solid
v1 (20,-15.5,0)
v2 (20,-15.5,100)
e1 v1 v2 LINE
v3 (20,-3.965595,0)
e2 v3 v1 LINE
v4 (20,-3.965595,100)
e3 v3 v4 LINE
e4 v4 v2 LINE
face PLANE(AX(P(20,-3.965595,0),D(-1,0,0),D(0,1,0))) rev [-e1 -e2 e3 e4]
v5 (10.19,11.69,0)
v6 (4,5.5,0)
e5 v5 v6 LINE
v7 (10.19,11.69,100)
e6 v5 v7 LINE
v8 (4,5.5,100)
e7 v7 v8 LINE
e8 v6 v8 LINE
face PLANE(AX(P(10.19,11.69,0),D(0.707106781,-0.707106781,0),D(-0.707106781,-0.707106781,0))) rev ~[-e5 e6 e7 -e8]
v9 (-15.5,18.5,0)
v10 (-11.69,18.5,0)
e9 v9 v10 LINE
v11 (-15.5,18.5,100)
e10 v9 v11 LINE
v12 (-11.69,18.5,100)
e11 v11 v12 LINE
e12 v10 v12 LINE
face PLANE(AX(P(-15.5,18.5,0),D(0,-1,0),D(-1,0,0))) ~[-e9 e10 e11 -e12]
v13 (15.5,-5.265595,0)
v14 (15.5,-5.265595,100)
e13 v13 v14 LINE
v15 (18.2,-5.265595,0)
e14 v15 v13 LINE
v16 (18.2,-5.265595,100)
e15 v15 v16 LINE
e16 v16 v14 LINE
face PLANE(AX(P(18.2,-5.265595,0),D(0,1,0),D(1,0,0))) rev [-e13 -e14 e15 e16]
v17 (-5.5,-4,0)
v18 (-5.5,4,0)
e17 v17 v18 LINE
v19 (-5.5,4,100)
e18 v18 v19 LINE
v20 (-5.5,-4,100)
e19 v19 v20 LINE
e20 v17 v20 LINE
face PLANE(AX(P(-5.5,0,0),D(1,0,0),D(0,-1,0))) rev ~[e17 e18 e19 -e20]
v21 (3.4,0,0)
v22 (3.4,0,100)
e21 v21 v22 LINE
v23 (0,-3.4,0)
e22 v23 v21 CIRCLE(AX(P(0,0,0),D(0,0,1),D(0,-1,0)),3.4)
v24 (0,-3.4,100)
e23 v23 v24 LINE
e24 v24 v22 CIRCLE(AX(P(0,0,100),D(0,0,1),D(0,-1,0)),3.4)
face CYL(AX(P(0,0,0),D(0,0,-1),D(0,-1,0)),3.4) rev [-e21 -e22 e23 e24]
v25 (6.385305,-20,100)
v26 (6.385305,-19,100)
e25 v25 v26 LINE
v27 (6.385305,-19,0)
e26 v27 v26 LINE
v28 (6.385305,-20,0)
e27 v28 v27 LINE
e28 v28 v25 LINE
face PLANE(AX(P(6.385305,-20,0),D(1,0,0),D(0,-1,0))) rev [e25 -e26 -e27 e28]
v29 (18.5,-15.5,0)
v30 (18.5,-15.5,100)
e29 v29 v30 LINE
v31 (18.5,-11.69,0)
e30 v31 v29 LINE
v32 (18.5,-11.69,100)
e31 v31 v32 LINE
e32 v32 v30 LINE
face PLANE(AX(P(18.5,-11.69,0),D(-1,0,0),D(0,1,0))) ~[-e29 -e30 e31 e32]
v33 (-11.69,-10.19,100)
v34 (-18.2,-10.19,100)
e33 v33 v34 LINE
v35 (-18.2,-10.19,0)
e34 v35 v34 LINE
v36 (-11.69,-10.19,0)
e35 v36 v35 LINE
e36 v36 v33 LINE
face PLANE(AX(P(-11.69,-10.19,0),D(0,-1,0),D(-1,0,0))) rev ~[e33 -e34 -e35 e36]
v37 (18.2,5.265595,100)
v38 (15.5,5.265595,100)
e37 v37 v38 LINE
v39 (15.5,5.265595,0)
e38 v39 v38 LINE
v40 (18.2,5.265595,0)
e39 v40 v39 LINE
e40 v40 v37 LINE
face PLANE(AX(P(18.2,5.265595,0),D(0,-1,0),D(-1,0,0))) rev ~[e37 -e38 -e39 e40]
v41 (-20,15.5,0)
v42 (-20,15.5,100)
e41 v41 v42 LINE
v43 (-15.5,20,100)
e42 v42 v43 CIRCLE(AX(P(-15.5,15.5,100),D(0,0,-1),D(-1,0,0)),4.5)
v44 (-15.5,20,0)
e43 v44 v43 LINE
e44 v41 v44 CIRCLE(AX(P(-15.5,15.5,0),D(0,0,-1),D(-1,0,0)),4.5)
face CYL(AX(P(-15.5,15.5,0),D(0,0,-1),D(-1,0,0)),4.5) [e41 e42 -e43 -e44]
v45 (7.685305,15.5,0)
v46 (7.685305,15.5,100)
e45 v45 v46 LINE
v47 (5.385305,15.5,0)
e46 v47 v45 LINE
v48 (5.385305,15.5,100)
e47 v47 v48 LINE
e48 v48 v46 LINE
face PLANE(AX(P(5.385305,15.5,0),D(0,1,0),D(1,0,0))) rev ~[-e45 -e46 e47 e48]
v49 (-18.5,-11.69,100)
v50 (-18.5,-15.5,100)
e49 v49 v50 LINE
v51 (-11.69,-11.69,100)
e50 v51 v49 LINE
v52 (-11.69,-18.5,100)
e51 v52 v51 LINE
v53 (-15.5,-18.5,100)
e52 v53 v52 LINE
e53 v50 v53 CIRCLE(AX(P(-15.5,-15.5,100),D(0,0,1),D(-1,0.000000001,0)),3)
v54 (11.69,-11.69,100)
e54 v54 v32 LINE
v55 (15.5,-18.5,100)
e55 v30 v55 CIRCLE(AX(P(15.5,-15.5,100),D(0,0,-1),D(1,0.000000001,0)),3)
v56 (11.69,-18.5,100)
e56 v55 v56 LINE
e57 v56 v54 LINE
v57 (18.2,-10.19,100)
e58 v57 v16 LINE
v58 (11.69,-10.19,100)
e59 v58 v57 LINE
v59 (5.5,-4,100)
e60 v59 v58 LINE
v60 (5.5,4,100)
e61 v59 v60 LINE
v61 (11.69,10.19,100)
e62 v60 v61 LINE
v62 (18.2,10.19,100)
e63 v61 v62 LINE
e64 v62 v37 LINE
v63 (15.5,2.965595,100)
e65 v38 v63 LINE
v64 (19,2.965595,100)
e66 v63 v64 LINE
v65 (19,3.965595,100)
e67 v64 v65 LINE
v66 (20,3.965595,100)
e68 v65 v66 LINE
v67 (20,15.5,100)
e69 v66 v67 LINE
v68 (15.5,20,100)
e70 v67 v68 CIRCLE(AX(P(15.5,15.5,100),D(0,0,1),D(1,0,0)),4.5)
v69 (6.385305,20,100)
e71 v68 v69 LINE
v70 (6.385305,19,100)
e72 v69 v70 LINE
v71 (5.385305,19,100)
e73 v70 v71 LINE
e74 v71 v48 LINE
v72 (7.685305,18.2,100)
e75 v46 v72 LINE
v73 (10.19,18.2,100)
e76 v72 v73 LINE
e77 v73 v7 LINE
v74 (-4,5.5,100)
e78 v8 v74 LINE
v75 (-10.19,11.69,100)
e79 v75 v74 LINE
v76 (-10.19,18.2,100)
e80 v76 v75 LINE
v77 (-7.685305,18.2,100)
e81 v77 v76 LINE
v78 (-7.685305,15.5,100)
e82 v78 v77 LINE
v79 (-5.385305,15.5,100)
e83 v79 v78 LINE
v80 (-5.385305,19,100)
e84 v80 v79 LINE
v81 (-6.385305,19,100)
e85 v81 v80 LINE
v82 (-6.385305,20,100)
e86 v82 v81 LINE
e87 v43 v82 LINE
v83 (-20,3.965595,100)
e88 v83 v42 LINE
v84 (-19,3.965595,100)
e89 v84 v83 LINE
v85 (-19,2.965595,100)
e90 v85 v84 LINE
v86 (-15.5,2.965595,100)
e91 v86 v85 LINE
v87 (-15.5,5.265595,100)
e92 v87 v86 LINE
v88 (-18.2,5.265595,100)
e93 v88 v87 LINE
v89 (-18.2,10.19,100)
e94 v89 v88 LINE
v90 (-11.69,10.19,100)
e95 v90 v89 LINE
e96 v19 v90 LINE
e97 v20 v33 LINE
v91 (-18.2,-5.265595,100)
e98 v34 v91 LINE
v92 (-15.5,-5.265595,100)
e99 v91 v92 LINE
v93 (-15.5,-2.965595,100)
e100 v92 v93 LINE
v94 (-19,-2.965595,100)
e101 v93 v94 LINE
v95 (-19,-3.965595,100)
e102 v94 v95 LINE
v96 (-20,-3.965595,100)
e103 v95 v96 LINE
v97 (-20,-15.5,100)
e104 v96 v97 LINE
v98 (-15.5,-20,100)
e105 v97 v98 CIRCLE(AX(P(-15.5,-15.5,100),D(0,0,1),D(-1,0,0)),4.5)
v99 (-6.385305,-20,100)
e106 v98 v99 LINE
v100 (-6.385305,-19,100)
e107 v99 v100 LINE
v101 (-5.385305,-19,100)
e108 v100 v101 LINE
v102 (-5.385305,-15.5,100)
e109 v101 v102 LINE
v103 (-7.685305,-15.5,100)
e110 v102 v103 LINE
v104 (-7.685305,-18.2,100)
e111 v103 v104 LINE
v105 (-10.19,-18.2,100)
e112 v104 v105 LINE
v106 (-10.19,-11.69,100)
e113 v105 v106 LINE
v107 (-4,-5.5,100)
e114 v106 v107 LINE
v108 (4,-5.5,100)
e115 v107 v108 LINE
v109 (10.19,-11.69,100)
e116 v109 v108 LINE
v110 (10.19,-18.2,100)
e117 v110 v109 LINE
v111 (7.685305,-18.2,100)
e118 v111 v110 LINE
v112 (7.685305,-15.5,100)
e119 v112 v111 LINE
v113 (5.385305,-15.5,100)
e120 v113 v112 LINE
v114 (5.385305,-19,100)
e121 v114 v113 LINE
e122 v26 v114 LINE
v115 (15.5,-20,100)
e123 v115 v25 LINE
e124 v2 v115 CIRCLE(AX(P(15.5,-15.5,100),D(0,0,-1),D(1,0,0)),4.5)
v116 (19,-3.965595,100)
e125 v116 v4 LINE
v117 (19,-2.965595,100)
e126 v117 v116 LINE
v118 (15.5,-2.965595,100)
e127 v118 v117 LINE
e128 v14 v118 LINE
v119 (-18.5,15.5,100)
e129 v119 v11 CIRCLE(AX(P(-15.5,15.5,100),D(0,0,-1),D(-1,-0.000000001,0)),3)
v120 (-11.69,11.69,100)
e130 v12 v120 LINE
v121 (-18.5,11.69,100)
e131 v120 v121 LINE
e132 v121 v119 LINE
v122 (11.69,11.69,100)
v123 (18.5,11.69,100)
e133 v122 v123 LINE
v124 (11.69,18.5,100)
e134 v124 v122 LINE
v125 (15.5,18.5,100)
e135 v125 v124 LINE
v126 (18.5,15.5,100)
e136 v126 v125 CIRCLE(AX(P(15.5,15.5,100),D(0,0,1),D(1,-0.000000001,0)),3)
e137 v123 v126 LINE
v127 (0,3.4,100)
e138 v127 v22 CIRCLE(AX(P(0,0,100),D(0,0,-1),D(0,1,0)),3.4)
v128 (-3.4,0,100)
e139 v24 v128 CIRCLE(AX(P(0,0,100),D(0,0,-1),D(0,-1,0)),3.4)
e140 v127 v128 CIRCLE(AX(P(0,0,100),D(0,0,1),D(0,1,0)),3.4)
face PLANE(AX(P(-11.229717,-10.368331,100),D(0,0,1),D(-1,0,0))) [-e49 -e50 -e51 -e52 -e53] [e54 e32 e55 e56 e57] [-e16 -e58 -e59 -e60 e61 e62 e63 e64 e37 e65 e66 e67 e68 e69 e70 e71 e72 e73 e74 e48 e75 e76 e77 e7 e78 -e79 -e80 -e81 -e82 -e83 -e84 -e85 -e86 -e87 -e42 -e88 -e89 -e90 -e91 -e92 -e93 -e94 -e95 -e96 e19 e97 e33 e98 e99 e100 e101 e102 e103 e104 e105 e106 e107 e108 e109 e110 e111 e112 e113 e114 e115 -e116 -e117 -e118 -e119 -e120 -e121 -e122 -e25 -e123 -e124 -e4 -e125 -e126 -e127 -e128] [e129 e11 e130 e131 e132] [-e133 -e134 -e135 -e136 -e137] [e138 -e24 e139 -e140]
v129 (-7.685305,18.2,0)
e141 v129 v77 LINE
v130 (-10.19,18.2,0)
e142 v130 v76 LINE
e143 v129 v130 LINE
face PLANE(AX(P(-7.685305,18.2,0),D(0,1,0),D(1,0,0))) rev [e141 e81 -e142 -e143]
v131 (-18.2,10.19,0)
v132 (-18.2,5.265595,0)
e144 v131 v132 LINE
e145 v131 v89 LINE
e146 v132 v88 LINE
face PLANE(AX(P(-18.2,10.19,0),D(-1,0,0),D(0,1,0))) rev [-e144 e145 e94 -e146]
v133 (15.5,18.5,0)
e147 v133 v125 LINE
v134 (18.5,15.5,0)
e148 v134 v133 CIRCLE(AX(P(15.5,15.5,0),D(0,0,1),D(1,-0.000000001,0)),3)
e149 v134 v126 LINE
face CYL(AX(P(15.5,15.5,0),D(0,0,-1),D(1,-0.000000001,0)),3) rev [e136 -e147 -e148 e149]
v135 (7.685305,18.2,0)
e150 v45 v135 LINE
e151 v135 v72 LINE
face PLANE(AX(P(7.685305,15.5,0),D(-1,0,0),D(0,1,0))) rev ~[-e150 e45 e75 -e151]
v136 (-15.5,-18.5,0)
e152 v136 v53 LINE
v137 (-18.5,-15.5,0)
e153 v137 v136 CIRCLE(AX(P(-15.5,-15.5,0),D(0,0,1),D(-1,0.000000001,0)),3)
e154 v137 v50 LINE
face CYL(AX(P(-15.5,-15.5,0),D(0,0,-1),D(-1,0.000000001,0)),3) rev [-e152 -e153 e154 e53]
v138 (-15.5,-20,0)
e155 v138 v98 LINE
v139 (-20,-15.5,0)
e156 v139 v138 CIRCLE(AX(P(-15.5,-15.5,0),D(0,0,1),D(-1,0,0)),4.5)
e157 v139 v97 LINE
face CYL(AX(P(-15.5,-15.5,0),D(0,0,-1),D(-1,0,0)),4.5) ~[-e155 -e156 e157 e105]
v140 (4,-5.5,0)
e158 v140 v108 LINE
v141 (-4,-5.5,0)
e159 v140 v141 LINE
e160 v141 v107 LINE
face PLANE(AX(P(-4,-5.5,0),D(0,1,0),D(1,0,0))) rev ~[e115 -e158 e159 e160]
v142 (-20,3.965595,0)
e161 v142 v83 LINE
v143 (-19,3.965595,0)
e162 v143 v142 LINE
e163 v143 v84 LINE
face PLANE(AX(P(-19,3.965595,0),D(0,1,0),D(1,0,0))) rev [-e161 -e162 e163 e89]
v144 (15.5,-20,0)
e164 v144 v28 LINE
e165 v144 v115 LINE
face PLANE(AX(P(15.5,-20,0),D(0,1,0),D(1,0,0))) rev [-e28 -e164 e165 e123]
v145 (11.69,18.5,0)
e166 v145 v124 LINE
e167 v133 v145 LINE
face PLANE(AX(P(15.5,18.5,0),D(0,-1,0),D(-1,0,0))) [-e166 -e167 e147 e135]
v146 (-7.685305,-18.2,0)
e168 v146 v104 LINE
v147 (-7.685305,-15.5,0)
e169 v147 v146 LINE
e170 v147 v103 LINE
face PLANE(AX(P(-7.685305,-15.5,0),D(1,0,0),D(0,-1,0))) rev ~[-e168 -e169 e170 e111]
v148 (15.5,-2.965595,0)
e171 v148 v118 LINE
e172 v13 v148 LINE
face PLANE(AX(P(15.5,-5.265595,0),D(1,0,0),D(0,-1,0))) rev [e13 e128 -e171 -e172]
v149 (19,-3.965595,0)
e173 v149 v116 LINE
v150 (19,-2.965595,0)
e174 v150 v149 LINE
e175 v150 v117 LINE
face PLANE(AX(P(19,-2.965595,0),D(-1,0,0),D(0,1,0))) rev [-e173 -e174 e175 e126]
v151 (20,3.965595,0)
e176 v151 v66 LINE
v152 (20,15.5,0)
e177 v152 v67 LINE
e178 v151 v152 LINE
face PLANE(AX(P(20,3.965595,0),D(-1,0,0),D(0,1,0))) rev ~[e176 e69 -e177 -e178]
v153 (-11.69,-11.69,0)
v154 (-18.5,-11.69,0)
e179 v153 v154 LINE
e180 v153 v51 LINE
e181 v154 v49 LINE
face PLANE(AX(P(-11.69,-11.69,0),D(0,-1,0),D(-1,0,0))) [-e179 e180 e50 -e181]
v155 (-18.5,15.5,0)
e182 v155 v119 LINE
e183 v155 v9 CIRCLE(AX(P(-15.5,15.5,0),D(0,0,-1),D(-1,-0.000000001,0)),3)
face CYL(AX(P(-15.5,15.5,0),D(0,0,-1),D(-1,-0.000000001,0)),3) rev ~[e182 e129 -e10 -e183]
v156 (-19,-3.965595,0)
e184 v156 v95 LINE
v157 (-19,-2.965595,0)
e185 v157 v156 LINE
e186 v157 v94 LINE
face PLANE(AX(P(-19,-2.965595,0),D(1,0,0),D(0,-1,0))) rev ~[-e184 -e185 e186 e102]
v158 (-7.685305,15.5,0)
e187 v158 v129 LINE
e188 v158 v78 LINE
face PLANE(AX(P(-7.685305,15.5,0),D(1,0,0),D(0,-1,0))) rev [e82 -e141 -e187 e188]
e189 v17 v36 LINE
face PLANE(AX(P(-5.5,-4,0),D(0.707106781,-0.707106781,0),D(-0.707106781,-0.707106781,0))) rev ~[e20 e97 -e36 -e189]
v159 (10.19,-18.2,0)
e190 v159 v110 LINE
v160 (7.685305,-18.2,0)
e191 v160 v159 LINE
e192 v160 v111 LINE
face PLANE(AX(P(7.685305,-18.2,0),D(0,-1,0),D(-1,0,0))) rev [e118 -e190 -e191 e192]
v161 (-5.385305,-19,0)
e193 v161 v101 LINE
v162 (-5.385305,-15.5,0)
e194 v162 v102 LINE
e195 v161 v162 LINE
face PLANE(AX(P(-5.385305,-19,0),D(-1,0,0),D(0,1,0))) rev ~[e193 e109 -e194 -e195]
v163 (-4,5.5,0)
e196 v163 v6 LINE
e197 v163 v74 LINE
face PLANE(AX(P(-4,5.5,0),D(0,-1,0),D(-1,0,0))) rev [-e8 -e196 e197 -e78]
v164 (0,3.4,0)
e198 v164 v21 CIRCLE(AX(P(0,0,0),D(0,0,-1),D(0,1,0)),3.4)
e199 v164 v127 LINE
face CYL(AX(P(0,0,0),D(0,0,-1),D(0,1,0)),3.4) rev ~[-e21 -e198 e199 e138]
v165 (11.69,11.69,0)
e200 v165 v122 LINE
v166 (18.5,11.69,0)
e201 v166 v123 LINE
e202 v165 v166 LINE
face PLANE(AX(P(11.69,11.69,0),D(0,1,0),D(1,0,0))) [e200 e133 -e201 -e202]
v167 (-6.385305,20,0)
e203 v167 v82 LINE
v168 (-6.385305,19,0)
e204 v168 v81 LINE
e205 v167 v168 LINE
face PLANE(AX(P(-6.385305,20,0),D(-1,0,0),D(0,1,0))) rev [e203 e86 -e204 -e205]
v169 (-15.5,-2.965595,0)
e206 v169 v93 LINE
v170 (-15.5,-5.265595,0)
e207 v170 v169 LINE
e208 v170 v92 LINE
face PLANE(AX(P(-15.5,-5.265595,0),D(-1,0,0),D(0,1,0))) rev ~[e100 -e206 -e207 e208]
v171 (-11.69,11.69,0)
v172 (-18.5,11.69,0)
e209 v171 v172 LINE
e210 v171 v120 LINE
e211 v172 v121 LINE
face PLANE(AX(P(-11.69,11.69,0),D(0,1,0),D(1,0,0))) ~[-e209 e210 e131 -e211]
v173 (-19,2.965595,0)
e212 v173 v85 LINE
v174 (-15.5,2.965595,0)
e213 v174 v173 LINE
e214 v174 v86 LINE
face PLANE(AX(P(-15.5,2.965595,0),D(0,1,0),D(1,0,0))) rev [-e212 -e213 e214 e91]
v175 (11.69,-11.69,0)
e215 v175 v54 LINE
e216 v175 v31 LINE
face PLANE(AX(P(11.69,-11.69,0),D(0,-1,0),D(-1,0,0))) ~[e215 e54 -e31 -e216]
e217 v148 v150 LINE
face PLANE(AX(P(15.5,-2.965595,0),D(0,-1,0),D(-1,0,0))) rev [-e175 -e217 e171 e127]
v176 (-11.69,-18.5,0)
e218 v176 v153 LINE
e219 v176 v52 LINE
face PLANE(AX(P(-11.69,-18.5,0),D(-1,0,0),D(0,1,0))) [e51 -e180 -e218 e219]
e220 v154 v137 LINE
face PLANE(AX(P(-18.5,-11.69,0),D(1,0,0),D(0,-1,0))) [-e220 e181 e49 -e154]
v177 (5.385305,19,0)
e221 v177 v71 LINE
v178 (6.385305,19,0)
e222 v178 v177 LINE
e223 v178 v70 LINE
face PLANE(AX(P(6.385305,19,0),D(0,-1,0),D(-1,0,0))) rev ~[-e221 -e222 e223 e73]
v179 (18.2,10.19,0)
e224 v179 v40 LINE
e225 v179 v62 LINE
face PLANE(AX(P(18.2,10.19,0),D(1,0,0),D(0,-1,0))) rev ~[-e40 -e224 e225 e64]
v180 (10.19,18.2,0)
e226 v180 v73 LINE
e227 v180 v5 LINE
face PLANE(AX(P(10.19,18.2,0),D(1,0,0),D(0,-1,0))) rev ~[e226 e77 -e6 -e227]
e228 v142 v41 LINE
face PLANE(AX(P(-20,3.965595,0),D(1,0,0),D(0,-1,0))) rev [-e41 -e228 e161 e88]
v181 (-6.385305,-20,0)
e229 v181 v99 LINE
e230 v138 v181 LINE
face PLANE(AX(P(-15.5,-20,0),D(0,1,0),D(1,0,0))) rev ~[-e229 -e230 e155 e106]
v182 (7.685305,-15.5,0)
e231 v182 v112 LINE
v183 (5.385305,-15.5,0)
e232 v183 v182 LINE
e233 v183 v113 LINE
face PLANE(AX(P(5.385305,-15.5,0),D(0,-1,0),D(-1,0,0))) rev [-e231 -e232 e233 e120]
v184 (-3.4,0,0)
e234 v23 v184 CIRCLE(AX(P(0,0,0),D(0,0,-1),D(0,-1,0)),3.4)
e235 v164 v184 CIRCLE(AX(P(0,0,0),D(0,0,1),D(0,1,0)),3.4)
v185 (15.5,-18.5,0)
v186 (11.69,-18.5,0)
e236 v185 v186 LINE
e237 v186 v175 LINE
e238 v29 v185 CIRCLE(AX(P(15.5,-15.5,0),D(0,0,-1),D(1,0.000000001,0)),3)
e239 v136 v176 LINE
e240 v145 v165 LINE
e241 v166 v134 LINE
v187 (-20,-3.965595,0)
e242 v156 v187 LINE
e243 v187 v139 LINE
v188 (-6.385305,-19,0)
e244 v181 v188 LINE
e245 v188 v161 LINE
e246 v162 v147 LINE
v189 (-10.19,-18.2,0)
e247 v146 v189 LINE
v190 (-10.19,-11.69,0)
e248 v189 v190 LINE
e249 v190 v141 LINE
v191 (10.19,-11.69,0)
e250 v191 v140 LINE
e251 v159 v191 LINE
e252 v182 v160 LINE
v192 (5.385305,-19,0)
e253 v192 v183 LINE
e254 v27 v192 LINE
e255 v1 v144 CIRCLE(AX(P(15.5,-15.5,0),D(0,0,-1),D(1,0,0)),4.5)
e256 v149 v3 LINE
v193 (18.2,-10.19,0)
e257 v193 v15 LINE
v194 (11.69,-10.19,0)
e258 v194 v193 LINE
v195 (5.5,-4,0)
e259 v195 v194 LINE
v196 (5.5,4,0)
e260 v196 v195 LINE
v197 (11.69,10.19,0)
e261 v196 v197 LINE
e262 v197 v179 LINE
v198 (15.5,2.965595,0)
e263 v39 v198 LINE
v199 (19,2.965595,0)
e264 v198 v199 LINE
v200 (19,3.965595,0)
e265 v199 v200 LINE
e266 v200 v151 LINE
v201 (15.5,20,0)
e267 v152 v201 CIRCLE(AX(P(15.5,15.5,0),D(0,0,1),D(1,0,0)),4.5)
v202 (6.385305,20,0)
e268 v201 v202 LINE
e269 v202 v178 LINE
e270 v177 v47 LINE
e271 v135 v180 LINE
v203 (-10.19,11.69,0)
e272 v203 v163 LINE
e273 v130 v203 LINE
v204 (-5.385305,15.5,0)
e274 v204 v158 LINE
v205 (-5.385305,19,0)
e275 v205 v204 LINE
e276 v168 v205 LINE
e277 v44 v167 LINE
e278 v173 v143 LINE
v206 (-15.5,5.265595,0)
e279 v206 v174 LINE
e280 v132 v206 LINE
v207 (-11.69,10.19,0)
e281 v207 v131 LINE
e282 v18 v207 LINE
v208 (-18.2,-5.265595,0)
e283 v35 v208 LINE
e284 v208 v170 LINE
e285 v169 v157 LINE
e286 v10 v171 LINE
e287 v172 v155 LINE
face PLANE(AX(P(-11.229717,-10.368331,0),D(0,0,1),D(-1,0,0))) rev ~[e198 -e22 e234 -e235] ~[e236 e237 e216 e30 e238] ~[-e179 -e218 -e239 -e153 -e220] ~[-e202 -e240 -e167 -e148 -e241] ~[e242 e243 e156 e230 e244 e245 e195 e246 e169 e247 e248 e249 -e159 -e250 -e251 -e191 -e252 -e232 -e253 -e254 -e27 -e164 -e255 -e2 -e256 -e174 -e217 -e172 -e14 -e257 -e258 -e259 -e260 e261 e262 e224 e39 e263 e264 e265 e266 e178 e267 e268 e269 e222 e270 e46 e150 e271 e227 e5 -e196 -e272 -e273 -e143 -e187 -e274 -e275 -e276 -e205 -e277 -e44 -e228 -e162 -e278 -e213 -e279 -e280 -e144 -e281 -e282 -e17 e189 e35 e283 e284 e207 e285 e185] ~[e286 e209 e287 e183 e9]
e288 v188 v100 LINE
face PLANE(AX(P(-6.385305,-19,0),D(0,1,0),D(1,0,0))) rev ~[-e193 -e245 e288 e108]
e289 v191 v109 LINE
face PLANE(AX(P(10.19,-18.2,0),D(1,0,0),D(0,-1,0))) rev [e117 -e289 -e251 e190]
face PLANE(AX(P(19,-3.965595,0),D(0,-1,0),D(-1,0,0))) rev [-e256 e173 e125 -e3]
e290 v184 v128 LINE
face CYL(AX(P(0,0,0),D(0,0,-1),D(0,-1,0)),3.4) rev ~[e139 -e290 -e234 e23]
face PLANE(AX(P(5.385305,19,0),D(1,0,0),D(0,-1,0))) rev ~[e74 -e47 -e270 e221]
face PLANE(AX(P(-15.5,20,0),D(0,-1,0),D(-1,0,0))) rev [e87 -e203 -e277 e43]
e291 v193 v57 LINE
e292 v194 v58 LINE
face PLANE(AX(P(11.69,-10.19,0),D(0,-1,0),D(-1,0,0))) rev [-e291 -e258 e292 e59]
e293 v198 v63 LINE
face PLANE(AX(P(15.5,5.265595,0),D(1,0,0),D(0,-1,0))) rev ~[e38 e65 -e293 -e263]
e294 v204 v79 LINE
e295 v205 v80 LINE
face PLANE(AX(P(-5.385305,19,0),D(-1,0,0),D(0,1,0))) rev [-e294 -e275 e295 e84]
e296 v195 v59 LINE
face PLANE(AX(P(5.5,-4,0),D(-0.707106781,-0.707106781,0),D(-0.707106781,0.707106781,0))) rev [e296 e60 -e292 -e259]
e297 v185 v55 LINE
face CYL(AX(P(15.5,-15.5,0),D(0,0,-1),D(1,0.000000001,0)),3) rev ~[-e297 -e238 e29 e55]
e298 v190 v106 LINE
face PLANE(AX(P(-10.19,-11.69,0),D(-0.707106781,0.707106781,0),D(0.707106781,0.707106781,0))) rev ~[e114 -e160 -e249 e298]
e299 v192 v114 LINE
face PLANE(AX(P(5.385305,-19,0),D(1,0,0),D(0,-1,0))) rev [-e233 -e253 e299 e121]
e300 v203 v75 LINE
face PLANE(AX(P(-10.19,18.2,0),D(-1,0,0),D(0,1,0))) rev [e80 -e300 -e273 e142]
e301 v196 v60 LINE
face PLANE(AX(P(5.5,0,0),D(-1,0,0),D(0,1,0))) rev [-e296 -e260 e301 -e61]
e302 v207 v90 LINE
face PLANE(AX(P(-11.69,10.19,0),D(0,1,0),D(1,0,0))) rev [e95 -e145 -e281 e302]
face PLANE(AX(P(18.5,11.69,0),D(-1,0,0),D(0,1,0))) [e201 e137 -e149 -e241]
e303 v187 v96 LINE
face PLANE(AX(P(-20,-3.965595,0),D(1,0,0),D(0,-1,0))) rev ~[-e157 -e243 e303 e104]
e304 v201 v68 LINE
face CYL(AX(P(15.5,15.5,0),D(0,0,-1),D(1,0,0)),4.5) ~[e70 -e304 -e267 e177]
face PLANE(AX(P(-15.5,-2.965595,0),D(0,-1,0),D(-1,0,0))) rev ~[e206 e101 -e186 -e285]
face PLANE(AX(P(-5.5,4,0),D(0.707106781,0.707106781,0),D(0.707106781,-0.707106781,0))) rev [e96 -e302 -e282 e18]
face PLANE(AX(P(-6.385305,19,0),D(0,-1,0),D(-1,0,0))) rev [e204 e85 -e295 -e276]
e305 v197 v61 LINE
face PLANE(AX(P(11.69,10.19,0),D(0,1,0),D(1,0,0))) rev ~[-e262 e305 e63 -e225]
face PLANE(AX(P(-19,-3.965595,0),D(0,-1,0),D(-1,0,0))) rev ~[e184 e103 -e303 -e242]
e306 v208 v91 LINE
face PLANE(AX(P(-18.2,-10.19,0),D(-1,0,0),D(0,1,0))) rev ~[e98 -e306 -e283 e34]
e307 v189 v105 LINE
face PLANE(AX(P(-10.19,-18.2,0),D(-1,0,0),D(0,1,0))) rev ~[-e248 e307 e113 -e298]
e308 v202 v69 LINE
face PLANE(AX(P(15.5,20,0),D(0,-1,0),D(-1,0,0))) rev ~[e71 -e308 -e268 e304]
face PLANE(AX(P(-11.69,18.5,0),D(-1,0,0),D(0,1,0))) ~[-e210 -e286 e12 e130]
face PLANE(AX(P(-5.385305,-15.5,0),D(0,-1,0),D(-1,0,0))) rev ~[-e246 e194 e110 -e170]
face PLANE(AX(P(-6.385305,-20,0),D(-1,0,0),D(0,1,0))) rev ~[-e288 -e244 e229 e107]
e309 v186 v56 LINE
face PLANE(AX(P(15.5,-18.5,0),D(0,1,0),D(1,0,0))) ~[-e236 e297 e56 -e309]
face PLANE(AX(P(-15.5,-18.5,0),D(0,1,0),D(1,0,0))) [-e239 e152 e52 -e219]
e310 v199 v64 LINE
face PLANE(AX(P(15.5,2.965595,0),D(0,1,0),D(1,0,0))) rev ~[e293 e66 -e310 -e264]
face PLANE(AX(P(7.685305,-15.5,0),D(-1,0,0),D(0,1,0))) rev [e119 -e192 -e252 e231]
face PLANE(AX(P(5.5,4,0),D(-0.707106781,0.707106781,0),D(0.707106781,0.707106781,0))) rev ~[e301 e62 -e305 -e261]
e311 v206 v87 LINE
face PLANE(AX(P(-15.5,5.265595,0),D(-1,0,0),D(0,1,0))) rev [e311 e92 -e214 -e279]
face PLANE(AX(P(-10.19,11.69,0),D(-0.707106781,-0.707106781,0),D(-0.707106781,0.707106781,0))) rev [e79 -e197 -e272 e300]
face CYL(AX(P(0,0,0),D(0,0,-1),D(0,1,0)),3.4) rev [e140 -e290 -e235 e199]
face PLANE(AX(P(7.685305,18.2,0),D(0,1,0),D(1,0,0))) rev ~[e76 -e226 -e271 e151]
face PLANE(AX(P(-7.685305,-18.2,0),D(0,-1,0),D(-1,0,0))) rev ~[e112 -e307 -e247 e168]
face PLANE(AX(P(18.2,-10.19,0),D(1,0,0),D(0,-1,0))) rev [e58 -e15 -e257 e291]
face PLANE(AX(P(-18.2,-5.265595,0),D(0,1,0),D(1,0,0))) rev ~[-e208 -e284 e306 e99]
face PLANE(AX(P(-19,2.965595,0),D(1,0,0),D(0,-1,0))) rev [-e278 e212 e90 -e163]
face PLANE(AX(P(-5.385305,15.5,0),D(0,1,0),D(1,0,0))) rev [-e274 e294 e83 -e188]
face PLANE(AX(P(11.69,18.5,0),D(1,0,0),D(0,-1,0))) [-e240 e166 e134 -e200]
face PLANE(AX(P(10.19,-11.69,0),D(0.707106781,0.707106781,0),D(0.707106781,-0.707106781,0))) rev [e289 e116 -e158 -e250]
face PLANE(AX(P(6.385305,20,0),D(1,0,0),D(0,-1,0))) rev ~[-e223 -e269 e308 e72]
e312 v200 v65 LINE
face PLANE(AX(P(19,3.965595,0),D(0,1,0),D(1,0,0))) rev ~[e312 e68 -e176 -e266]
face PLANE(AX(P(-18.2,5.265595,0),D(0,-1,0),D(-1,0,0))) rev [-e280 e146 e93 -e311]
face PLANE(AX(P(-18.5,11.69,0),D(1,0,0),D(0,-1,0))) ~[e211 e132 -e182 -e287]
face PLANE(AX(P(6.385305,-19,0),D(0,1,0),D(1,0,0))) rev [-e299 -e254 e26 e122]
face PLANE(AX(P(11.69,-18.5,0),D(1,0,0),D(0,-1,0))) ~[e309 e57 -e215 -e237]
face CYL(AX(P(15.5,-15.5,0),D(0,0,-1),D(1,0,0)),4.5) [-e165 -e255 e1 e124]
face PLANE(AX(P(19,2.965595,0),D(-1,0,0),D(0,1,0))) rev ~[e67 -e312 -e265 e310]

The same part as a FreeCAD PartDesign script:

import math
import FreeCAD as App
import Part
import Sketcher
from FreeCAD import Vector
Q = App.Units.Quantity

doc = App.newDocument("Part")
params = doc.addObject("Spreadsheet::Sheet", "Params")
for row, (alias, value) in enumerate([
    ("sketch1_radius", "3 mm"),
    ("sketch1_radius2", "4.5 mm"),
    ("sketch1_radius3", "3.4 mm"),
    ("sketch1_width", "1 mm"),
    ("sketch1_width2", "4 mm"),
    ("pad1_length", "100 mm"),
    ("sketch2_radius", "3 mm"),
    ("sketch2_radius2", "4.5 mm"),
    ("sketch2_radius3", "3.4 mm"),
    ("sketch2_width", "1 mm"),
    ("sketch2_width2", "4 mm"),
    ("pad2_length", "100 mm"),
    ("sketch3_radius", "3 mm"),
    ("sketch3_radius2", "3.4 mm"),
    ("sketch3_radius3", "4.5 mm"),
    ("sketch3_width", "4 mm"),
    ("sketch3_width2", "1 mm"),
    ("pad3_length", "100 mm"),
], start=1):
    params.set(f"A{row}", alias)
    params.set(f"B{row}", "=" + value)
    params.setAlias(f"B{row}", alias)

body = doc.addObject("PartDesign::Body", "Body")

# Sketch on XY plane
sketch1 = doc.addObject("Sketcher::SketchObject", "Sketch")
body.addObject(sketch1)
sketch1.AttachmentSupport = (doc.XY_Plane, [""])
sketch1.MapMode = "FlatFace"
sketch1.addGeometry([
    Part.LineSegment(Vector(3.4, 0, 0), Vector(5.5, 0, 0)),  # 0
    Part.LineSegment(Vector(5.5, 0, 0), Vector(5.5, 4, 0)),  # 1
    Part.LineSegment(Vector(5.5, 4, 0), Vector(11.7, 10.2, 0)),  # 2
    Part.LineSegment(Vector(11.7, 10.2, 0), Vector(18.2, 10.2, 0)),  # 3
    Part.LineSegment(Vector(18.2, 10.2, 0), Vector(18.2, 5.3, 0)),  # 4
    Part.LineSegment(Vector(18.2, 5.3, 0), Vector(15.5, 5.3, 0)),  # 5
    Part.LineSegment(Vector(15.5, 5.3, 0), Vector(15.5, 3, 0)),  # 6
    Part.LineSegment(Vector(15.5, 3, 0), Vector(19, 3, 0)),  # 7
    Part.LineSegment(Vector(19, 3, 0), Vector(19, 4, 0)),  # 8
    Part.LineSegment(Vector(19, 4, 0), Vector(20, 4, 0)),  # 9
    Part.LineSegment(Vector(20, 4, 0), Vector(20, 15.5, 0)),  # 10
    Part.ArcOfCircle(Part.Circle(Vector(15.5, 15.5, 0), Vector(0, 0, 1), 4.5), math.radians(0), math.radians(90)),  # 11
    Part.LineSegment(Vector(15.5, 20, 0), Vector(6.4, 20, 0)),  # 12
    Part.LineSegment(Vector(6.4, 20, 0), Vector(6.4, 19, 0)),  # 13
    Part.LineSegment(Vector(6.4, 19, 0), Vector(5.4, 19, 0)),  # 14
    Part.LineSegment(Vector(5.4, 19, 0), Vector(5.4, 15.5, 0)),  # 15
    Part.LineSegment(Vector(5.4, 15.5, 0), Vector(7.7, 15.5, 0)),  # 16
    Part.LineSegment(Vector(7.7, 15.5, 0), Vector(7.7, 18.2, 0)),  # 17
    Part.LineSegment(Vector(7.7, 18.2, 0), Vector(10.2, 18.2, 0)),  # 18
    Part.LineSegment(Vector(10.2, 18.2, 0), Vector(10.2, 11.7, 0)),  # 19
    Part.LineSegment(Vector(10.2, 11.7, 0), Vector(4, 5.5, 0)),  # 20
    Part.LineSegment(Vector(4, 5.5, 0), Vector(0, 5.5, 0)),  # 21
    Part.LineSegment(Vector(0, 5.5, 0), Vector(0, 3.4, 0)),  # 22
    Part.ArcOfCircle(Part.Circle(Vector(0, 0, 0), Vector(0, 0, 1), 3.4), math.radians(0), math.radians(90)),  # 23
    Part.LineSegment(Vector(18.5, 15.5, 0), Vector(18.5, 11.7, 0)),  # 24
    Part.LineSegment(Vector(18.5, 11.7, 0), Vector(11.7, 11.7, 0)),  # 25
    Part.LineSegment(Vector(11.7, 11.7, 0), Vector(11.7, 18.5, 0)),  # 26
    Part.LineSegment(Vector(11.7, 18.5, 0), Vector(15.5, 18.5, 0)),  # 27
    Part.ArcOfCircle(Part.Circle(Vector(15.5, 15.5, 0), Vector(0, 0, 1), 3), math.radians(0), math.radians(90)),  # 28
], False)
sketch1.addConstraint([
    Sketcher.Constraint("Coincident", 0, 2, 1, 1),
    Sketcher.Constraint("Coincident", 1, 2, 2, 1),
    Sketcher.Constraint("Coincident", 2, 2, 3, 1),
    Sketcher.Constraint("Coincident", 3, 2, 4, 1),
    Sketcher.Constraint("Coincident", 4, 2, 5, 1),
    Sketcher.Constraint("Coincident", 5, 2, 6, 1),
    Sketcher.Constraint("Coincident", 6, 2, 7, 1),
    Sketcher.Constraint("Coincident", 7, 2, 8, 1),
    Sketcher.Constraint("Coincident", 8, 2, 9, 1),
    Sketcher.Constraint("Coincident", 9, 2, 10, 1),
    Sketcher.Constraint("Tangent", 10, 2, 11, 1),
    Sketcher.Constraint("Tangent", 11, 2, 12, 1),
    Sketcher.Constraint("Coincident", 12, 2, 13, 1),
    Sketcher.Constraint("Coincident", 13, 2, 14, 1),
    Sketcher.Constraint("Coincident", 14, 2, 15, 1),
    Sketcher.Constraint("Coincident", 15, 2, 16, 1),
    Sketcher.Constraint("Coincident", 16, 2, 17, 1),
    Sketcher.Constraint("Coincident", 17, 2, 18, 1),
    Sketcher.Constraint("Coincident", 18, 2, 19, 1),
    Sketcher.Constraint("Coincident", 19, 2, 20, 1),
    Sketcher.Constraint("Coincident", 20, 2, 21, 1),
    Sketcher.Constraint("Coincident", 21, 2, 22, 1),
    Sketcher.Constraint("Coincident", 22, 2, 23, 2),
    Sketcher.Constraint("Coincident", 23, 1, 0, 1),
    Sketcher.Constraint("Coincident", 24, 2, 25, 1),
    Sketcher.Constraint("Coincident", 25, 2, 26, 1),
    Sketcher.Constraint("Coincident", 26, 2, 27, 1),
    Sketcher.Constraint("Tangent", 27, 2, 28, 2),
    Sketcher.Constraint("Tangent", 28, 1, 24, 1),
    Sketcher.Constraint("Horizontal", 0),
    Sketcher.Constraint("Vertical", 1),
    Sketcher.Constraint("Horizontal", 3),
    Sketcher.Constraint("Vertical", 4),
    Sketcher.Constraint("Horizontal", 5),
    Sketcher.Constraint("Vertical", 6),
    Sketcher.Constraint("Horizontal", 7),
    Sketcher.Constraint("Vertical", 8),
    Sketcher.Constraint("Horizontal", 9),
    Sketcher.Constraint("Vertical", 10),
    Sketcher.Constraint("Horizontal", 12),
    Sketcher.Constraint("Vertical", 13),
    Sketcher.Constraint("Horizontal", 14),
    Sketcher.Constraint("Vertical", 15),
    Sketcher.Constraint("Horizontal", 16),
    Sketcher.Constraint("Vertical", 17),
    Sketcher.Constraint("Horizontal", 18),
    Sketcher.Constraint("Vertical", 19),
    Sketcher.Constraint("Horizontal", 21),
    Sketcher.Constraint("Vertical", 22),
    Sketcher.Constraint("Vertical", 24),
    Sketcher.Constraint("Horizontal", 25),
    Sketcher.Constraint("Vertical", 26),
    Sketcher.Constraint("Horizontal", 27),
    Sketcher.Constraint("Coincident", 23, 3, -1, 1),
    Sketcher.Constraint("Coincident", 28, 3, 11, 3),
    Sketcher.Constraint("PointOnObject", 0, 2, -1),
    Sketcher.Constraint("PointOnObject", 21, 2, -2),
    Sketcher.Constraint("Parallel", 2, 20),
    Sketcher.Constraint("Horizontal", 10, 2, 15, 2),
    Sketcher.Constraint("Horizontal", 19, 2, 24, 2),
    Sketcher.Constraint("Vertical", 28, 3, 5, 2),
    Sketcher.Constraint("Vertical", 2, 2, 25, 2),
    Sketcher.Constraint("Equal", 9, 14),
    Sketcher.Constraint("Equal", 21, 1),
    Sketcher.Constraint("Equal", 16, 6),
    Sketcher.Constraint("Equal", 14, 8),
    Sketcher.Constraint("Equal", 8, 13),
    Sketcher.Constraint("Equal", 5, 17),
    Sketcher.Constraint("Equal", 3, 19),
    Sketcher.Constraint("Equal", 0, 22),
    Sketcher.Constraint("Equal", 2, 20),
    Sketcher.Constraint("Radius", 28, Q("3 mm")),
    Sketcher.Constraint("Radius", 11, Q("4.5 mm")),
    Sketcher.Constraint("Radius", 23, Q("3.4 mm")),
    Sketcher.Constraint("DistanceX", 9, 1, 9, 2, Q("1 mm")),
    Sketcher.Constraint("DistanceX", 21, 2, 21, 1, Q("4 mm")),
    Sketcher.Constraint("Angle", 2, Q("45 deg")),
    Sketcher.Constraint("DistanceX", 0, 1, 0, 2, Q("2.1 mm")),
    Sketcher.Constraint("DistanceX", 5, 2, 5, 1, Q("2.7 mm")),
    Sketcher.Constraint("DistanceX", 16, 1, 16, 2, Q("2.3 mm")),
    Sketcher.Constraint("DistanceX", -1, 1, 7, 2, Q("19 mm")),
    Sketcher.Constraint("DistanceX", 3, 1, 3, 2, Q("6.51 mm")),
    Sketcher.Constraint("DistanceX", 12, 2, 12, 1, Q("9.114695 mm")),
    Sketcher.Constraint("DistanceY", 4, 2, 4, 1, Q("4.924405 mm")),
])
sketch1.setExpression("Constraints[71]", "Params.sketch1_radius")
sketch1.setExpression("Constraints[72]", "Params.sketch1_radius2")
sketch1.setExpression("Constraints[73]", "Params.sketch1_radius3")
sketch1.setExpression("Constraints[74]", "Params.sketch1_width")
sketch1.setExpression("Constraints[75]", "Params.sketch1_width2")
pad1 = doc.addObject("PartDesign::Pad", "Pad")
body.addObject(pad1)
pad1.Profile = sketch1
pad1.setExpression("Length", "Params.pad1_length")
doc.recompute()

mirrored = doc.addObject("PartDesign::Mirrored", "Mirrored")
body.addObject(mirrored)
mirrored.Originals = [pad1]
mirrored.MirrorPlane = (doc.XZ_Plane, [""])
body.Tip = mirrored
doc.recompute()

mirrored2 = doc.addObject("PartDesign::Mirrored", "Mirrored001")
body.addObject(mirrored2)
mirrored2.Originals = [pad1]
mirrored2.MirrorPlane = (doc.YZ_Plane, [""])
body.Tip = mirrored2

# Sketch on XY plane
sketch2 = doc.addObject("Sketcher::SketchObject", "Sketch001")
body.addObject(sketch2)
sketch2.AttachmentSupport = (doc.XY_Plane, [""])
sketch2.MapMode = "FlatFace"
sketch2.addGeometry([
    Part.LineSegment(Vector(-3.4, 0, 0), Vector(-5.5, 0, 0)),  # 0
    Part.LineSegment(Vector(-5.5, 0, 0), Vector(-5.5, -4, 0)),  # 1
    Part.LineSegment(Vector(-5.5, -4, 0), Vector(-11.7, -10.2, 0)),  # 2
    Part.LineSegment(Vector(-11.7, -10.2, 0), Vector(-18.2, -10.2, 0)),  # 3
    Part.LineSegment(Vector(-18.2, -10.2, 0), Vector(-18.2, -5.3, 0)),  # 4
    Part.LineSegment(Vector(-18.2, -5.3, 0), Vector(-15.5, -5.3, 0)),  # 5
    Part.LineSegment(Vector(-15.5, -5.3, 0), Vector(-15.5, -3, 0)),  # 6
    Part.LineSegment(Vector(-15.5, -3, 0), Vector(-19, -3, 0)),  # 7
    Part.LineSegment(Vector(-19, -3, 0), Vector(-19, -4, 0)),  # 8
    Part.LineSegment(Vector(-19, -4, 0), Vector(-20, -4, 0)),  # 9
    Part.LineSegment(Vector(-20, -4, 0), Vector(-20, -15.5, 0)),  # 10
    Part.ArcOfCircle(Part.Circle(Vector(-15.5, -15.5, 0), Vector(0, 0, 1), 4.5), math.radians(-180), math.radians(-90)),  # 11
    Part.LineSegment(Vector(-15.5, -20, 0), Vector(-6.4, -20, 0)),  # 12
    Part.LineSegment(Vector(-6.4, -20, 0), Vector(-6.4, -19, 0)),  # 13
    Part.LineSegment(Vector(-6.4, -19, 0), Vector(-5.4, -19, 0)),  # 14
    Part.LineSegment(Vector(-5.4, -19, 0), Vector(-5.4, -15.5, 0)),  # 15
    Part.LineSegment(Vector(-5.4, -15.5, 0), Vector(-7.7, -15.5, 0)),  # 16
    Part.LineSegment(Vector(-7.7, -15.5, 0), Vector(-7.7, -18.2, 0)),  # 17
    Part.LineSegment(Vector(-7.7, -18.2, 0), Vector(-10.2, -18.2, 0)),  # 18
    Part.LineSegment(Vector(-10.2, -18.2, 0), Vector(-10.2, -11.7, 0)),  # 19
    Part.LineSegment(Vector(-10.2, -11.7, 0), Vector(-4, -5.5, 0)),  # 20
    Part.LineSegment(Vector(-4, -5.5, 0), Vector(0, -5.5, 0)),  # 21
    Part.LineSegment(Vector(0, -5.5, 0), Vector(0, -3.4, 0)),  # 22
    Part.ArcOfCircle(Part.Circle(Vector(0, 0, 0), Vector(0, 0, 1), 3.4), math.radians(180), math.radians(270)),  # 23
    Part.LineSegment(Vector(-18.5, -15.5, 0), Vector(-18.5, -11.7, 0)),  # 24
    Part.LineSegment(Vector(-18.5, -11.7, 0), Vector(-11.7, -11.7, 0)),  # 25
    Part.LineSegment(Vector(-11.7, -11.7, 0), Vector(-11.7, -18.5, 0)),  # 26
    Part.LineSegment(Vector(-11.7, -18.5, 0), Vector(-15.5, -18.5, 0)),  # 27
    Part.ArcOfCircle(Part.Circle(Vector(-15.5, -15.5, 0), Vector(0, 0, 1), 3), math.radians(180), math.radians(270)),  # 28
], False)
sketch2.addConstraint([
    Sketcher.Constraint("Coincident", 0, 2, 1, 1),
    Sketcher.Constraint("Coincident", 1, 2, 2, 1),
    Sketcher.Constraint("Coincident", 2, 2, 3, 1),
    Sketcher.Constraint("Coincident", 3, 2, 4, 1),
    Sketcher.Constraint("Coincident", 4, 2, 5, 1),
    Sketcher.Constraint("Coincident", 5, 2, 6, 1),
    Sketcher.Constraint("Coincident", 6, 2, 7, 1),
    Sketcher.Constraint("Coincident", 7, 2, 8, 1),
    Sketcher.Constraint("Coincident", 8, 2, 9, 1),
    Sketcher.Constraint("Coincident", 9, 2, 10, 1),
    Sketcher.Constraint("Tangent", 10, 2, 11, 1),
    Sketcher.Constraint("Tangent", 11, 2, 12, 1),
    Sketcher.Constraint("Coincident", 12, 2, 13, 1),
    Sketcher.Constraint("Coincident", 13, 2, 14, 1),
    Sketcher.Constraint("Coincident", 14, 2, 15, 1),
    Sketcher.Constraint("Coincident", 15, 2, 16, 1),
    Sketcher.Constraint("Coincident", 16, 2, 17, 1),
    Sketcher.Constraint("Coincident", 17, 2, 18, 1),
    Sketcher.Constraint("Coincident", 18, 2, 19, 1),
    Sketcher.Constraint("Coincident", 19, 2, 20, 1),
    Sketcher.Constraint("Coincident", 20, 2, 21, 1),
    Sketcher.Constraint("Coincident", 21, 2, 22, 1),
    Sketcher.Constraint("Coincident", 22, 2, 23, 2),
    Sketcher.Constraint("Coincident", 23, 1, 0, 1),
    Sketcher.Constraint("Coincident", 24, 2, 25, 1),
    Sketcher.Constraint("Coincident", 25, 2, 26, 1),
    Sketcher.Constraint("Coincident", 26, 2, 27, 1),
    Sketcher.Constraint("Tangent", 27, 2, 28, 2),
    Sketcher.Constraint("Tangent", 28, 1, 24, 1),
    Sketcher.Constraint("Horizontal", 0),
    Sketcher.Constraint("Vertical", 1),
    Sketcher.Constraint("Horizontal", 3),
    Sketcher.Constraint("Vertical", 4),
    Sketcher.Constraint("Horizontal", 5),
    Sketcher.Constraint("Vertical", 6),
    Sketcher.Constraint("Horizontal", 7),
    Sketcher.Constraint("Vertical", 8),
    Sketcher.Constraint("Horizontal", 9),
    Sketcher.Constraint("Vertical", 10),
    Sketcher.Constraint("Horizontal", 12),
    Sketcher.Constraint("Vertical", 13),
    Sketcher.Constraint("Horizontal", 14),
    Sketcher.Constraint("Vertical", 15),
    Sketcher.Constraint("Horizontal", 16),
    Sketcher.Constraint("Vertical", 17),
    Sketcher.Constraint("Horizontal", 18),
    Sketcher.Constraint("Vertical", 19),
    Sketcher.Constraint("Horizontal", 21),
    Sketcher.Constraint("Vertical", 22),
    Sketcher.Constraint("Vertical", 24),
    Sketcher.Constraint("Horizontal", 25),
    Sketcher.Constraint("Vertical", 26),
    Sketcher.Constraint("Horizontal", 27),
    Sketcher.Constraint("Coincident", 23, 3, -1, 1),
    Sketcher.Constraint("Coincident", 28, 3, 11, 3),
    Sketcher.Constraint("PointOnObject", 0, 2, -1),
    Sketcher.Constraint("PointOnObject", 21, 2, -2),
    Sketcher.Constraint("Parallel", 2, 20),
    Sketcher.Constraint("Horizontal", 10, 2, 15, 2),
    Sketcher.Constraint("Horizontal", 19, 2, 24, 2),
    Sketcher.Constraint("Vertical", 28, 3, 5, 2),
    Sketcher.Constraint("Vertical", 2, 2, 25, 2),
    Sketcher.Constraint("Equal", 9, 14),
    Sketcher.Constraint("Equal", 21, 1),
    Sketcher.Constraint("Equal", 16, 6),
    Sketcher.Constraint("Equal", 14, 8),
    Sketcher.Constraint("Equal", 8, 13),
    Sketcher.Constraint("Equal", 5, 17),
    Sketcher.Constraint("Equal", 3, 19),
    Sketcher.Constraint("Equal", 0, 22),
    Sketcher.Constraint("Equal", 2, 20),
    Sketcher.Constraint("Radius", 28, Q("3 mm")),
    Sketcher.Constraint("Radius", 11, Q("4.5 mm")),
    Sketcher.Constraint("Radius", 23, Q("3.4 mm")),
    Sketcher.Constraint("DistanceX", 9, 2, 9, 1, Q("1 mm")),
    Sketcher.Constraint("DistanceX", 21, 1, 21, 2, Q("4 mm")),
    Sketcher.Constraint("Angle", 2, Q("-135 deg")),
    Sketcher.Constraint("DistanceX", 0, 2, 0, 1, Q("2.1 mm")),
    Sketcher.Constraint("DistanceX", 5, 1, 5, 2, Q("2.7 mm")),
    Sketcher.Constraint("DistanceX", 16, 2, 16, 1, Q("2.3 mm")),
    Sketcher.Constraint("DistanceX", 7, 2, -1, 1, Q("19 mm")),
    Sketcher.Constraint("DistanceX", 3, 2, 3, 1, Q("6.51 mm")),
    Sketcher.Constraint("DistanceX", 12, 1, 12, 2, Q("9.114695 mm")),
    Sketcher.Constraint("DistanceY", 4, 1, 4, 2, Q("4.924405 mm")),
])
sketch2.setExpression("Constraints[71]", "Params.sketch2_radius")
sketch2.setExpression("Constraints[72]", "Params.sketch2_radius2")
sketch2.setExpression("Constraints[73]", "Params.sketch2_radius3")
sketch2.setExpression("Constraints[74]", "Params.sketch2_width")
sketch2.setExpression("Constraints[75]", "Params.sketch2_width2")
pad2 = doc.addObject("PartDesign::Pad", "Pad001")
body.addObject(pad2)
pad2.Profile = sketch2
pad2.setExpression("Length", "Params.pad2_length")

# Sketch on XY plane
sketch3 = doc.addObject("Sketcher::SketchObject", "Sketch002")
body.addObject(sketch3)
sketch3.AttachmentSupport = (doc.XY_Plane, [""])
sketch3.MapMode = "FlatFace"
sketch3.addGeometry([
    Part.LineSegment(Vector(5.5, 0, 0), Vector(3.4, 0, 0)),  # 0
    Part.ArcOfCircle(Part.Circle(Vector(0, 0, 0), Vector(0, 0, 1), 3.4), math.radians(-90), math.radians(0)),  # 1
    Part.LineSegment(Vector(0, -3.4, 0), Vector(0, -5.5, 0)),  # 2
    Part.LineSegment(Vector(0, -5.5, 0), Vector(4, -5.5, 0)),  # 3
    Part.LineSegment(Vector(4, -5.5, 0), Vector(10.2, -11.7, 0)),  # 4
    Part.LineSegment(Vector(10.2, -11.7, 0), Vector(10.2, -18.2, 0)),  # 5
    Part.LineSegment(Vector(10.2, -18.2, 0), Vector(7.7, -18.2, 0)),  # 6
    Part.LineSegment(Vector(7.7, -18.2, 0), Vector(7.7, -15.5, 0)),  # 7
    Part.LineSegment(Vector(7.7, -15.5, 0), Vector(5.4, -15.5, 0)),  # 8
    Part.LineSegment(Vector(5.4, -15.5, 0), Vector(5.4, -19, 0)),  # 9
    Part.LineSegment(Vector(5.4, -19, 0), Vector(6.4, -19, 0)),  # 10
    Part.LineSegment(Vector(6.4, -19, 0), Vector(6.4, -20, 0)),  # 11
    Part.LineSegment(Vector(6.4, -20, 0), Vector(15.5, -20, 0)),  # 12
    Part.ArcOfCircle(Part.Circle(Vector(15.5, -15.5, 0), Vector(0, 0, 1), 4.5), math.radians(-90), math.radians(0)),  # 13
    Part.LineSegment(Vector(20, -15.5, 0), Vector(20, -4, 0)),  # 14
    Part.LineSegment(Vector(20, -4, 0), Vector(19, -4, 0)),  # 15
    Part.LineSegment(Vector(19, -4, 0), Vector(19, -3, 0)),  # 16
    Part.LineSegment(Vector(19, -3, 0), Vector(15.5, -3, 0)),  # 17
    Part.LineSegment(Vector(15.5, -3, 0), Vector(15.5, -5.3, 0)),  # 18
    Part.LineSegment(Vector(15.5, -5.3, 0), Vector(18.2, -5.3, 0)),  # 19
    Part.LineSegment(Vector(18.2, -5.3, 0), Vector(18.2, -10.2, 0)),  # 20
    Part.LineSegment(Vector(18.2, -10.2, 0), Vector(11.7, -10.2, 0)),  # 21
    Part.LineSegment(Vector(11.7, -10.2, 0), Vector(5.5, -4, 0)),  # 22
    Part.LineSegment(Vector(5.5, -4, 0), Vector(5.5, 0, 0)),  # 23
    Part.LineSegment(Vector(18.5, -11.7, 0), Vector(18.5, -15.5, 0)),  # 24
    Part.ArcOfCircle(Part.Circle(Vector(15.5, -15.5, 0), Vector(0, 0, 1), 3), math.radians(-90), math.radians(0)),  # 25
    Part.LineSegment(Vector(15.5, -18.5, 0), Vector(11.7, -18.5, 0)),  # 26
    Part.LineSegment(Vector(11.7, -18.5, 0), Vector(11.7, -11.7, 0)),  # 27
    Part.LineSegment(Vector(11.7, -11.7, 0), Vector(18.5, -11.7, 0)),  # 28
], False)
sketch3.addConstraint([
    Sketcher.Constraint("Coincident", 0, 2, 1, 2),
    Sketcher.Constraint("Coincident", 1, 1, 2, 1),
    Sketcher.Constraint("Coincident", 2, 2, 3, 1),
    Sketcher.Constraint("Coincident", 3, 2, 4, 1),
    Sketcher.Constraint("Coincident", 4, 2, 5, 1),
    Sketcher.Constraint("Coincident", 5, 2, 6, 1),
    Sketcher.Constraint("Coincident", 6, 2, 7, 1),
    Sketcher.Constraint("Coincident", 7, 2, 8, 1),
    Sketcher.Constraint("Coincident", 8, 2, 9, 1),
    Sketcher.Constraint("Coincident", 9, 2, 10, 1),
    Sketcher.Constraint("Coincident", 10, 2, 11, 1),
    Sketcher.Constraint("Coincident", 11, 2, 12, 1),
    Sketcher.Constraint("Tangent", 12, 2, 13, 1),
    Sketcher.Constraint("Tangent", 13, 2, 14, 1),
    Sketcher.Constraint("Coincident", 14, 2, 15, 1),
    Sketcher.Constraint("Coincident", 15, 2, 16, 1),
    Sketcher.Constraint("Coincident", 16, 2, 17, 1),
    Sketcher.Constraint("Coincident", 17, 2, 18, 1),
    Sketcher.Constraint("Coincident", 18, 2, 19, 1),
    Sketcher.Constraint("Coincident", 19, 2, 20, 1),
    Sketcher.Constraint("Coincident", 20, 2, 21, 1),
    Sketcher.Constraint("Coincident", 21, 2, 22, 1),
    Sketcher.Constraint("Coincident", 22, 2, 23, 1),
    Sketcher.Constraint("Coincident", 23, 2, 0, 1),
    Sketcher.Constraint("Tangent", 24, 2, 25, 2),
    Sketcher.Constraint("Tangent", 25, 1, 26, 1),
    Sketcher.Constraint("Coincident", 26, 2, 27, 1),
    Sketcher.Constraint("Coincident", 27, 2, 28, 1),
    Sketcher.Constraint("Coincident", 28, 2, 24, 1),
    Sketcher.Constraint("Horizontal", 0),
    Sketcher.Constraint("Vertical", 2),
    Sketcher.Constraint("Horizontal", 3),
    Sketcher.Constraint("Vertical", 5),
    Sketcher.Constraint("Horizontal", 6),
    Sketcher.Constraint("Vertical", 7),
    Sketcher.Constraint("Horizontal", 8),
    Sketcher.Constraint("Vertical", 9),
    Sketcher.Constraint("Horizontal", 10),
    Sketcher.Constraint("Vertical", 11),
    Sketcher.Constraint("Horizontal", 12),
    Sketcher.Constraint("Vertical", 14),
    Sketcher.Constraint("Horizontal", 15),
    Sketcher.Constraint("Vertical", 16),
    Sketcher.Constraint("Horizontal", 17),
    Sketcher.Constraint("Vertical", 18),
    Sketcher.Constraint("Horizontal", 19),
    Sketcher.Constraint("Vertical", 20),
    Sketcher.Constraint("Horizontal", 21),
    Sketcher.Constraint("Vertical", 23),
    Sketcher.Constraint("Vertical", 24),
    Sketcher.Constraint("Horizontal", 26),
    Sketcher.Constraint("Vertical", 27),
    Sketcher.Constraint("Horizontal", 28),
    Sketcher.Constraint("Coincident", 1, 3, -1, 1),
    Sketcher.Constraint("Coincident", 25, 3, 13, 3),
    Sketcher.Constraint("PointOnObject", 0, 2, -1),
    Sketcher.Constraint("PointOnObject", 1, 1, -2),
    Sketcher.Constraint("Parallel", 4, 22),
    Sketcher.Constraint("Horizontal", 25, 3, 7, 2),
    Sketcher.Constraint("Horizontal", 4, 2, 27, 2),
    Sketcher.Constraint("Vertical", 12, 2, 17, 2),
    Sketcher.Constraint("Vertical", 21, 2, 26, 2),
    Sketcher.Constraint("Equal", 10, 15),
    Sketcher.Constraint("Equal", 0, 2),
    Sketcher.Constraint("Equal", 21, 5),
    Sketcher.Constraint("Equal", 19, 7),
    Sketcher.Constraint("Equal", 17, 9),
    Sketcher.Constraint("Equal", 11, 16),
    Sketcher.Constraint("Equal", 8, 18),
    Sketcher.Constraint("Equal", 3, 23),
    Sketcher.Constraint("Equal", 4, 22),
    Sketcher.Constraint("Radius", 25, Q("3 mm")),
    Sketcher.Constraint("Radius", 1, Q("3.4 mm")),
    Sketcher.Constraint("Radius", 13, Q("4.5 mm")),
    Sketcher.Constraint("DistanceX", 3, 1, 3, 2, Q("4 mm")),
    Sketcher.Constraint("DistanceX", 10, 1, 10, 2, Q("1 mm")),
    Sketcher.Constraint("Angle", 4, Q("-45 deg")),
    Sketcher.Constraint("DistanceX", 0, 2, 0, 1, Q("2.1 mm")),
    Sketcher.Constraint("DistanceX", 8, 2, 8, 1, Q("2.3 mm")),
    Sketcher.Constraint("DistanceX", 19, 1, 19, 2, Q("2.7 mm")),
    Sketcher.Constraint("DistanceY", 9, 2, -1, 1, Q("19 mm")),
    Sketcher.Constraint("DistanceX", 21, 2, 21, 1, Q("6.51 mm")),
    Sketcher.Constraint("DistanceX", 6, 2, 6, 1, Q("2.504695 mm")),
    Sketcher.Constraint("DistanceY", 14, 1, 14, 2, Q("11.534405 mm")),
])
sketch3.setExpression("Constraints[71]", "Params.sketch3_radius")
sketch3.setExpression("Constraints[72]", "Params.sketch3_radius2")
sketch3.setExpression("Constraints[73]", "Params.sketch3_radius3")
sketch3.setExpression("Constraints[74]", "Params.sketch3_width")
sketch3.setExpression("Constraints[75]", "Params.sketch3_width2")
pad3 = doc.addObject("PartDesign::Pad", "Pad002")
body.addObject(pad3)
pad3.Profile = sketch3
pad3.setExpression("Length", "Params.pad3_length")

doc.recompute()
